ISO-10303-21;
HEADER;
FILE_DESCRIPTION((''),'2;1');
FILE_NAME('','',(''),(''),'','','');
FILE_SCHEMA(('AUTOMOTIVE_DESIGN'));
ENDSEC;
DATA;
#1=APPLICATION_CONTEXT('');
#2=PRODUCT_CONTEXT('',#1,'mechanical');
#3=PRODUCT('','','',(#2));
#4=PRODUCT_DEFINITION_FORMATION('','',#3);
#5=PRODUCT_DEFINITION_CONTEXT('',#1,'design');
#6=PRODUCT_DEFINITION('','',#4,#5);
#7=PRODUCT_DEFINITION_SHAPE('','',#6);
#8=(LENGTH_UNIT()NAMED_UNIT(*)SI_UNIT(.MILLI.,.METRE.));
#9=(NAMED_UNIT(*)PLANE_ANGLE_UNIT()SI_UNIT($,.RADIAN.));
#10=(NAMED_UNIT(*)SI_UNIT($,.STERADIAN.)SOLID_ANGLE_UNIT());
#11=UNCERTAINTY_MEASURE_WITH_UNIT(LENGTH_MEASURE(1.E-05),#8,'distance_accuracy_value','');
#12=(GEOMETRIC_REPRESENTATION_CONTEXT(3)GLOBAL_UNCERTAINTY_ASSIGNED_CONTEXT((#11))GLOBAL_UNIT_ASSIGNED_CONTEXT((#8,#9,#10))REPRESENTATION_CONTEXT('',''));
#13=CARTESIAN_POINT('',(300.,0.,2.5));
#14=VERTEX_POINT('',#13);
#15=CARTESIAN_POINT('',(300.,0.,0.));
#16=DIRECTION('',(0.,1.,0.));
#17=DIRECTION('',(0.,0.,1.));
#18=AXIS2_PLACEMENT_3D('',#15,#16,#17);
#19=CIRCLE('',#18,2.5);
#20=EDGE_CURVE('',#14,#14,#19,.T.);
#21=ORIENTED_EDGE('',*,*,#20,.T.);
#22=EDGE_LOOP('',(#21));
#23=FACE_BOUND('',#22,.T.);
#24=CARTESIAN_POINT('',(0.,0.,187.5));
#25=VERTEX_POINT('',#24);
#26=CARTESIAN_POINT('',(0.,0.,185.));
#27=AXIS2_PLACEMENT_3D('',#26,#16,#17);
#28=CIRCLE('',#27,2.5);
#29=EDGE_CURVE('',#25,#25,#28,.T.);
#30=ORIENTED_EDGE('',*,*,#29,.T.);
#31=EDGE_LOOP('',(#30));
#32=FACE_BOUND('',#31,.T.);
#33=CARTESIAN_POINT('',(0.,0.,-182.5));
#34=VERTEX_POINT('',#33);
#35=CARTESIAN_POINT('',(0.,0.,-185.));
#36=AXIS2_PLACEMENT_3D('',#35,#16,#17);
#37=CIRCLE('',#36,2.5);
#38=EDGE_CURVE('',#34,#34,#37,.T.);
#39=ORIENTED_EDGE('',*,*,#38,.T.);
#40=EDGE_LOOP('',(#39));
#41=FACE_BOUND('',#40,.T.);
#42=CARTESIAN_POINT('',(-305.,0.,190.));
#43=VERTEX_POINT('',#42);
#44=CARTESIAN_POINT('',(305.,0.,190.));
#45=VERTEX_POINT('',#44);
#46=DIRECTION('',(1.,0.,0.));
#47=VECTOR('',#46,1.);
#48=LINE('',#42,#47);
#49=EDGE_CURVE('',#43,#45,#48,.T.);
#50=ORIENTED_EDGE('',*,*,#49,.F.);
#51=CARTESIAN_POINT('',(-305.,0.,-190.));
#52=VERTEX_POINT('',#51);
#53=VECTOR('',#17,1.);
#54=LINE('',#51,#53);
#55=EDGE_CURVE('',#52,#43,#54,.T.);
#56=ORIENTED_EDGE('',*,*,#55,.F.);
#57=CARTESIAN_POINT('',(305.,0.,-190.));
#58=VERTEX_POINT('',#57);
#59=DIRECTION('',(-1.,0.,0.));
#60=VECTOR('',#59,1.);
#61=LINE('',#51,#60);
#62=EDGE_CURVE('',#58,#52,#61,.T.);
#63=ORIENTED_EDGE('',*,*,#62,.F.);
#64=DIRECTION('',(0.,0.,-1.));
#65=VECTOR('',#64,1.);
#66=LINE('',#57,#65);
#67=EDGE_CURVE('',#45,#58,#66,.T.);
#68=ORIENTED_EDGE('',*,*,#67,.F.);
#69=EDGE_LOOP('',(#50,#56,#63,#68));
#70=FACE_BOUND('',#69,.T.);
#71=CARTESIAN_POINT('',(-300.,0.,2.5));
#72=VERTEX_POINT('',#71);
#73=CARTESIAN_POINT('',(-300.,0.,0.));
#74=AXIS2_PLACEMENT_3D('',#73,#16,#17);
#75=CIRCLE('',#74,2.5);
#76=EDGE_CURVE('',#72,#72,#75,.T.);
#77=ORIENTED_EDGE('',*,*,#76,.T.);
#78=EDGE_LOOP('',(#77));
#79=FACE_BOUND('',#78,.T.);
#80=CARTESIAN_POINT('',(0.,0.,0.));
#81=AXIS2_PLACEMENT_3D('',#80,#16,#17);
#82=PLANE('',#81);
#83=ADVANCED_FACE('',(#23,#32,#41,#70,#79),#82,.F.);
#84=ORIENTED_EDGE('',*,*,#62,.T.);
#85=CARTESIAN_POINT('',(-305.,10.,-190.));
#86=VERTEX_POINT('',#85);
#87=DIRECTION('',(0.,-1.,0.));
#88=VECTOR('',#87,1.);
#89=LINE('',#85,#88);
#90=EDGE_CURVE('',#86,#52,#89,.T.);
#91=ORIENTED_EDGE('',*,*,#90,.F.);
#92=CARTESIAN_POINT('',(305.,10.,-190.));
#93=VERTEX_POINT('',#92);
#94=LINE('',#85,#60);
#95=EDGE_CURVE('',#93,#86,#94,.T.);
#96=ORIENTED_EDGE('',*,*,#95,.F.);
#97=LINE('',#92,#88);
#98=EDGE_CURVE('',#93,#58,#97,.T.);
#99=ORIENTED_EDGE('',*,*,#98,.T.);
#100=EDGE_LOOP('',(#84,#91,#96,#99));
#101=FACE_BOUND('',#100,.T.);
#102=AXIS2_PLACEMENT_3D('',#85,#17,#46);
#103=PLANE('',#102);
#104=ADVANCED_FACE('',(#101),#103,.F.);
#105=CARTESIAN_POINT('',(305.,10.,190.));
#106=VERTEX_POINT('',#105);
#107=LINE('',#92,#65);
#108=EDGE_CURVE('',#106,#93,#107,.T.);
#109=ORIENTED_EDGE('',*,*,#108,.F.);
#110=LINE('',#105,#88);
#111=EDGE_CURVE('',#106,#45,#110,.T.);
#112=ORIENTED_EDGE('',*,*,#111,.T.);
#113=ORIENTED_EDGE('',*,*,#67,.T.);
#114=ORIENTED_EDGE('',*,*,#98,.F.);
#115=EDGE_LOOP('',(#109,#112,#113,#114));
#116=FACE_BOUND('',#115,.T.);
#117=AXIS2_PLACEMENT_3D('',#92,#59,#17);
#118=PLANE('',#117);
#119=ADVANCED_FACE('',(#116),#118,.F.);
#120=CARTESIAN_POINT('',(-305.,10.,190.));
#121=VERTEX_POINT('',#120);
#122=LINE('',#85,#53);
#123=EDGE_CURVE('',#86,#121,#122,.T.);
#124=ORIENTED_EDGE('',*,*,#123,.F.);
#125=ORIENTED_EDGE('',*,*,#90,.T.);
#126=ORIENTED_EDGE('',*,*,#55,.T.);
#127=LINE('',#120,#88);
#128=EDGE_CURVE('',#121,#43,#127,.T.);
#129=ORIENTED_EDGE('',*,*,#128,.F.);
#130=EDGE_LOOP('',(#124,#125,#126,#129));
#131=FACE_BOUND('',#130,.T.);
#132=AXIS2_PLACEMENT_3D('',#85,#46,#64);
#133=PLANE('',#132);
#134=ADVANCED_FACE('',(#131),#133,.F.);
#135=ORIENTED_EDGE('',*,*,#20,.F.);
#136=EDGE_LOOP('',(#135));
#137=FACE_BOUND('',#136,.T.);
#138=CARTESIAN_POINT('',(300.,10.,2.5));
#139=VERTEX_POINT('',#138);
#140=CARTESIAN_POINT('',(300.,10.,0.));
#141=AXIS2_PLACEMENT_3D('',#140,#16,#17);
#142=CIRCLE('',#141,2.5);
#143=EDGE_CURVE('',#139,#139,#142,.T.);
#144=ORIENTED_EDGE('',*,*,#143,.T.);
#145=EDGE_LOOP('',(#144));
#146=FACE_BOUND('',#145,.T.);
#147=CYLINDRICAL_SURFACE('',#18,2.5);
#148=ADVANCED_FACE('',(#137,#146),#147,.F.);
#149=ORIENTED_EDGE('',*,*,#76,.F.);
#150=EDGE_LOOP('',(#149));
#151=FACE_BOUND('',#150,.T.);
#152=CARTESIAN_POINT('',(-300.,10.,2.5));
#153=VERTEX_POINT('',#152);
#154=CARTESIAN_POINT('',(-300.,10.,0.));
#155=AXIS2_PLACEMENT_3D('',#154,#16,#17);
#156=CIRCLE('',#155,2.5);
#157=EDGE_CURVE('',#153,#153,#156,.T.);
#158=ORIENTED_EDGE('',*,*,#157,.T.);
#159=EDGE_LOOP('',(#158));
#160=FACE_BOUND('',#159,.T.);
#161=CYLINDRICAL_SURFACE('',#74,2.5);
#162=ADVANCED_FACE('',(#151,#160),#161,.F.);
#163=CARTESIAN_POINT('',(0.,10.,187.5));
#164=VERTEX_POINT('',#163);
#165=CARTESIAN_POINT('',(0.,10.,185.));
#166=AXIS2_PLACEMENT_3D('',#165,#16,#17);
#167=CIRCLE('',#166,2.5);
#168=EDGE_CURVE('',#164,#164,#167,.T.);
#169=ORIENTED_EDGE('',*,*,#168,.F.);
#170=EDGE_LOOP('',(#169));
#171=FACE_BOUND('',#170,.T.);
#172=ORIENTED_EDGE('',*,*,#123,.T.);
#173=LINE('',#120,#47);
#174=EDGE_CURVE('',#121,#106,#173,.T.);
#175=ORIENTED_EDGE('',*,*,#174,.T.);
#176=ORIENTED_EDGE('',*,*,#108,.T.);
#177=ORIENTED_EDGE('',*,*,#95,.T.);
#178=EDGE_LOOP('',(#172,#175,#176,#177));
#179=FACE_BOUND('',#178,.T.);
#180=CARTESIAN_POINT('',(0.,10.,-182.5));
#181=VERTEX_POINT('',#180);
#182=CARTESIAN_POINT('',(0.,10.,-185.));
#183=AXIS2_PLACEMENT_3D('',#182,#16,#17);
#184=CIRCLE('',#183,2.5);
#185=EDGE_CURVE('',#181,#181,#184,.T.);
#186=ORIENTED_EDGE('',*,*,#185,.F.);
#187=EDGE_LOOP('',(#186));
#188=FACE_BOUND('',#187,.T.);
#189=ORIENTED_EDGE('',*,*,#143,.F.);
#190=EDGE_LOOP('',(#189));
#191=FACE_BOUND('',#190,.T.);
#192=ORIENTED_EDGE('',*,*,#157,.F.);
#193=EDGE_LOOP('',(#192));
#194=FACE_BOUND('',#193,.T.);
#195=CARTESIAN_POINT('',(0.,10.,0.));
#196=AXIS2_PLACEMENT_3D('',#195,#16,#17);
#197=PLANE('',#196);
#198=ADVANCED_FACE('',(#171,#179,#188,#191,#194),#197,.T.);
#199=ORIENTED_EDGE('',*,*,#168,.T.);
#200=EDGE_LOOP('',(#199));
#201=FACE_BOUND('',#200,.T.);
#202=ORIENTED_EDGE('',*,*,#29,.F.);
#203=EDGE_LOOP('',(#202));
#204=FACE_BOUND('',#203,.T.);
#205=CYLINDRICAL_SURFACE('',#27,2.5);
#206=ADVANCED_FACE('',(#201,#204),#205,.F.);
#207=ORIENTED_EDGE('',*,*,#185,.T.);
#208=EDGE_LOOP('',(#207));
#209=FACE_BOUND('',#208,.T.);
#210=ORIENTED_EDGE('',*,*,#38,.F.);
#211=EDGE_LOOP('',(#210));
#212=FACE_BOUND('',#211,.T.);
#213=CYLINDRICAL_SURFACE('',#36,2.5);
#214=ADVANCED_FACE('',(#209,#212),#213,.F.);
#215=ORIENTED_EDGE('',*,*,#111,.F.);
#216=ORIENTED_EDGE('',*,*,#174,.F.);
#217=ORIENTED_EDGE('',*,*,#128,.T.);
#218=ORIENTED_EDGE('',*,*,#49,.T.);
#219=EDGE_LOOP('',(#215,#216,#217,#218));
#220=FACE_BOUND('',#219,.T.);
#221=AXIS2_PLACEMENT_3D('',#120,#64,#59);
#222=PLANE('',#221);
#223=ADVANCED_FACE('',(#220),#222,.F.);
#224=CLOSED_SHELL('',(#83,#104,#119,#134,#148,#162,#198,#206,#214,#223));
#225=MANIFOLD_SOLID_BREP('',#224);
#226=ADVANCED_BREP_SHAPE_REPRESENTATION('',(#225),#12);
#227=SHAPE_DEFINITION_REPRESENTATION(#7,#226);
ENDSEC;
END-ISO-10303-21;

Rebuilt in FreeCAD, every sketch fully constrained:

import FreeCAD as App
import Part
import Sketcher

V = App.Vector
Q = App.Units.Quantity


def add_polygon(sketch, points):
    """Adds a closed chain of lines whose ends are joined by coincident constraints."""
    first, n = sketch.GeometryCount, len(points)
    for a, b in zip(points, points[1:] + points[:1]):
        sketch.addGeometry(Part.LineSegment(App.Vector(*a, 0), App.Vector(*b, 0)), False)
    for i in range(n):
        sketch.addConstraint(Sketcher.Constraint("Coincident", first + i, 2, first + (i + 1) % n, 1))

doc = App.newDocument("Part")
params = doc.addObject("Spreadsheet::Sheet", "Params")
for row, (alias, value) in enumerate([
    ("sketch1_width", "610 mm"),
    ("sketch1_height", "380 mm"),
    ("pad1_length", "10 mm"),
    ("sketch2_diameter", "5 mm"),
    ("pocket1_length", "10 mm"),
], start=1):
    params.set(f"A{row}", alias)
    params.set(f"B{row}", "=" + value)
    params.setAlias(f"B{row}", alias)

body = doc.addObject("PartDesign::Body", "Body")

# Sketch on XZ plane
sketch1 = body.newObject("Sketcher::SketchObject", "Sketch")
sketch1.AttachmentSupport = (doc.getObject("XZ_Plane"), [""])
sketch1.MapMode = "FlatFace"
add_polygon(sketch1, [(-305, -190), (-305, 190), (305, 190), (305, -190)])  # lines 0-3
sketch1.addConstraint([
    Sketcher.Constraint("Vertical", 0),
    Sketcher.Constraint("Horizontal", 1),
    Sketcher.Constraint("Vertical", 2),
    Sketcher.Constraint("Horizontal", 3),
    Sketcher.Constraint("Symmetric", 0, 2, 2, 2, -1, 1),
    Sketcher.Constraint("DistanceX", 1, 1, 1, 2, Q("610 mm")),
    Sketcher.Constraint("DistanceY", 0, 1, 0, 2, Q("380 mm")),
])
sketch1.setExpression("Constraints[9]", "Params.sketch1_width")
sketch1.setExpression("Constraints[10]", "Params.sketch1_height")
pad1 = body.newObject("PartDesign::Pad", "Pad")
pad1.Profile = sketch1
pad1.setExpression("Length", "Params.pad1_length")
pad1.Reversed = True

# Sketch on XZ plane
sketch2 = body.newObject("Sketcher::SketchObject", "Sketch001")
sketch2.AttachmentSupport = (doc.getObject("XZ_Plane"), [""])
sketch2.MapMode = "FlatFace"
sketch2.AttachmentOffset = App.Placement(V(0, 0, -10), App.Rotation())
sketch2.addGeometry([
    Part.Circle(V(300, 0, 0), V(0, 0, 1), 2.5),
    Part.Circle(V(0, -185, 0), V(0, 0, 1), 2.5),
    Part.Circle(V(-300, 0, 0), V(0, 0, 1), 2.5),
    Part.Circle(V(0, 185, 0), V(0, 0, 1), 2.5),
], False)
sketch2.addConstraint([
    Sketcher.Constraint("Equal", 0, 1),
    Sketcher.Constraint("Equal", 1, 2),
    Sketcher.Constraint("Equal", 2, 3),
    Sketcher.Constraint("Symmetric", 0, 3, 2, 3, -1, 1),
    Sketcher.Constraint("Symmetric", 1, 3, 3, 3, -1, 1),
    Sketcher.Constraint("PointOnObject", 0, 3, -1),
    Sketcher.Constraint("PointOnObject", 1, 3, -2),
    Sketcher.Constraint("Diameter", 0, Q("5 mm")),
    Sketcher.Constraint("DistanceX", -1, 1, 0, 3, Q("300 mm")),
    Sketcher.Constraint("DistanceY", 1, 3, -1, 1, Q("185 mm")),
])
sketch2.setExpression("Constraints[7]", "Params.sketch2_diameter")
pocket1 = body.newObject("PartDesign::Pocket", "Pocket")
pocket1.Profile = sketch2
pocket1.setExpression("Length", "Params.pocket1_length")
pocket1.Reversed = True

doc.recompute()
